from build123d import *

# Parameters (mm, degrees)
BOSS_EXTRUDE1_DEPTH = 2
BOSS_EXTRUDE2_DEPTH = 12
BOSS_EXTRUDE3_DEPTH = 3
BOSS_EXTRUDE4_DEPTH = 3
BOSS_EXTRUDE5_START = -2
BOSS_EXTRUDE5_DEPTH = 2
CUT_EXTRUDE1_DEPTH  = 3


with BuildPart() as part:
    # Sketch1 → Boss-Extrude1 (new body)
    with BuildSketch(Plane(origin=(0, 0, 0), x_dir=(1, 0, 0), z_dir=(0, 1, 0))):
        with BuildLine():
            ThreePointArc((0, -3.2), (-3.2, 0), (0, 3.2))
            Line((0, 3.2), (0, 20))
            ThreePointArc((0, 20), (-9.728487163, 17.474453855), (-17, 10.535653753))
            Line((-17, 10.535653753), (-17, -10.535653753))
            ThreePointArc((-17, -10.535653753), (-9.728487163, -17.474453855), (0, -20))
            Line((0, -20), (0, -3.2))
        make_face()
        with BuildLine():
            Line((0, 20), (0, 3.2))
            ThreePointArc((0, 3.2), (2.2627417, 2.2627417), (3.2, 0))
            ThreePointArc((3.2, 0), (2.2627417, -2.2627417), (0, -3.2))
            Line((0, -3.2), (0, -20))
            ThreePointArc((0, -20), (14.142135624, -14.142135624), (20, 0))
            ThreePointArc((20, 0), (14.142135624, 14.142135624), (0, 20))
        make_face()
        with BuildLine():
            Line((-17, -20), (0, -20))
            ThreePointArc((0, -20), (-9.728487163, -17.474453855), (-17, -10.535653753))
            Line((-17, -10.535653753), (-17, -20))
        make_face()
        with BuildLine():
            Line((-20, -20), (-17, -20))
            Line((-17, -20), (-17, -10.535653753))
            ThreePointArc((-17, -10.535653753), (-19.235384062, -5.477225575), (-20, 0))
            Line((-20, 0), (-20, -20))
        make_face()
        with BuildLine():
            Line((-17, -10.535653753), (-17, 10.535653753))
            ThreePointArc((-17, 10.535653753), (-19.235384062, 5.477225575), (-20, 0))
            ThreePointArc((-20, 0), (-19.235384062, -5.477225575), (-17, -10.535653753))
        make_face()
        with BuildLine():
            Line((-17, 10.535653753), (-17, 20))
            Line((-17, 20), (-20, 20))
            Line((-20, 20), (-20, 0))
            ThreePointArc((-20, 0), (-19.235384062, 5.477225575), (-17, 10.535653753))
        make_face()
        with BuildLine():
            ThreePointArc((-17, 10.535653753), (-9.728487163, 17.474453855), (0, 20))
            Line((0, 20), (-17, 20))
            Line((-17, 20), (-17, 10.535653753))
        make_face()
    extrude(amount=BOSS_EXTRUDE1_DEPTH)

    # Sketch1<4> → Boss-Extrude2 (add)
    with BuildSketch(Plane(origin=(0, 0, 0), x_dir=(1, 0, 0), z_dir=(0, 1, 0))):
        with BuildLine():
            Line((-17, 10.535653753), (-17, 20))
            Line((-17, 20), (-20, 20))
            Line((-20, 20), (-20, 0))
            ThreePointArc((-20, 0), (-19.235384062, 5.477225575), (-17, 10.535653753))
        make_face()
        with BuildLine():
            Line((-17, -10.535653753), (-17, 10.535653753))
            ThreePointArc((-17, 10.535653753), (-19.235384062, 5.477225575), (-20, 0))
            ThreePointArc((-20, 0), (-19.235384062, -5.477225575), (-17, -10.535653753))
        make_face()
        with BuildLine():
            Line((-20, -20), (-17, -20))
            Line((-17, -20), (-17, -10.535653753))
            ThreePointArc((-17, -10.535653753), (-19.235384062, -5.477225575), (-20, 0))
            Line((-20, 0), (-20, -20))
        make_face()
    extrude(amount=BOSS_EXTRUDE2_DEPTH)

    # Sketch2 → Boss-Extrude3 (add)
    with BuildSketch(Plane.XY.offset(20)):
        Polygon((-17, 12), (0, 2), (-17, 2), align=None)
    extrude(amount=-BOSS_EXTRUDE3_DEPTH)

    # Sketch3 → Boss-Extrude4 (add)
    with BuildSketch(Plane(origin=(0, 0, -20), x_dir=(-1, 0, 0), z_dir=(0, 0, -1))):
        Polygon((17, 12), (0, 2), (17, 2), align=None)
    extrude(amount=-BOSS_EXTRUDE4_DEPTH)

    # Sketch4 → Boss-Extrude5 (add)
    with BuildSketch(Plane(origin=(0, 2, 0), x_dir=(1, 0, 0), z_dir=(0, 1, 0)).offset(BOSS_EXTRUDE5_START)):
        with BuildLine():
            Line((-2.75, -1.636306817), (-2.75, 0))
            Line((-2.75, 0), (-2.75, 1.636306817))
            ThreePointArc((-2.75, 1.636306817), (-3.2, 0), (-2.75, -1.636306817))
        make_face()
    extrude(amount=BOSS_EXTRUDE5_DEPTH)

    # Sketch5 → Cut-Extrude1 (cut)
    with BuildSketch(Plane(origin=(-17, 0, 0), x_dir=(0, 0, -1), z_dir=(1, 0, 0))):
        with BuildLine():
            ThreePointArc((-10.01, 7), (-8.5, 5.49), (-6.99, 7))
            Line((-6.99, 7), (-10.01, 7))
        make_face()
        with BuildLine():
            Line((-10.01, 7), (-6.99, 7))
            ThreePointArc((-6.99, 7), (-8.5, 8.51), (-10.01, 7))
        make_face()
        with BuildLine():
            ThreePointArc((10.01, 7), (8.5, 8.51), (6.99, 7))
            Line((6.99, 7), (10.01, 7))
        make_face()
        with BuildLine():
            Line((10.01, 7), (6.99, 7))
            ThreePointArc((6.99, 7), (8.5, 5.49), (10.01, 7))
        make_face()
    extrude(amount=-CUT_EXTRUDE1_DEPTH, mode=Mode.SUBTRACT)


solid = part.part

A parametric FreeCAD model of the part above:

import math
import FreeCAD as App
import Part
import Sketcher
from FreeCAD import Vector
Q = App.Units.Quantity

doc = App.newDocument("Part")
body = doc.addObject("PartDesign::Body", "Body")

sketch1 = doc.addObject("Sketcher::SketchObject", "Sketch")
body.addObject(sketch1)
sketch1.AttachmentSupport = (doc.XZ_Plane, [""])
sketch1.MapMode = "FlatFace"
sketch1.addGeometry([
    Part.LineSegment(Vector(-20, -20, 0), Vector(-20, 20, 0)),
    Part.LineSegment(Vector(-20, 20, 0), Vector(0, 20, 0)),
    Part.ArcOfCircle(Part.Circle(Vector(0, 0, 0), Vector(0, 0, 1), 20), math.radians(0), math.radians(90)),
    Part.ArcOfCircle(Part.Circle(Vector(0, 0, 0), Vector(0, 0, 1), 20), math.radians(-90), math.radians(0)),
    Part.LineSegment(Vector(0, -20, 0), Vector(-20, -20, 0)),
    Part.ArcOfCircle(Part.Circle(Vector(0, 0, 0), Vector(0, 0, 1), 3.2), math.radians(90), math.radians(270)),
    Part.ArcOfCircle(Part.Circle(Vector(0, 0, 0), Vector(0, 0, 1), 3.2), math.radians(-90), math.radians(0)),
    Part.ArcOfCircle(Part.Circle(Vector(0, 0, 0), Vector(0, 0, 1), 3.2), math.radians(0), math.radians(90)),
], False)
sketch1.addConstraint([
    Sketcher.Constraint("Coincident", 0, 2, 1, 1),
    Sketcher.Constraint("Tangent", 1, 2, 2, 2),
    Sketcher.Constraint("Tangent", 2, 1, 3, 2),
    Sketcher.Constraint("Tangent", 3, 1, 4, 1),
    Sketcher.Constraint("Coincident", 4, 2, 0, 1),
    Sketcher.Constraint("Tangent", 5, 2, 6, 1),
    Sketcher.Constraint("Tangent", 6, 2, 7, 1),
    Sketcher.Constraint("Tangent", 7, 2, 5, 1),
    Sketcher.Constraint("Vertical", 0),
    Sketcher.Constraint("Horizontal", 1),
    Sketcher.Constraint("Horizontal", 4),
    Sketcher.Constraint("Coincident", 2, 3, -1, 1),
    Sketcher.Constraint("Coincident", 5, 3, -1, 1),
    Sketcher.Constraint("Equal", 2, 3),
    Sketcher.Constraint("PointOnObject", 2, 1, -1),
    Sketcher.Constraint("PointOnObject", 5, 2, -2),
    Sketcher.Constraint("PointOnObject", 6, 2, -1),
    Sketcher.Constraint("PointOnObject", 7, 2, -2),
    Sketcher.Constraint("Radius", 2, Q("20 mm")),
    Sketcher.Constraint("Radius", 5, Q("3.2 mm")),
    Sketcher.Constraint("DistanceX", 1, 1, 1, 2, Q("20 mm")),
])
pad1 = doc.addObject("PartDesign::Pad", "Pad")
body.addObject(pad1)
pad1.Profile = sketch1
pad1.Length = 2
pad1.Reversed = True

sketch2 = doc.addObject("Sketcher::SketchObject", "Sketch001")
body.addObject(sketch2)
sketch2.AttachmentSupport = (doc.XZ_Plane, [""])
sketch2.MapMode = "FlatFace"
sketch2.addGeometry([
    Part.LineSegment(Vector(-17, -20, 0), Vector(-20, -20, 0)),
    Part.LineSegment(Vector(-20, -20, 0), Vector(-20, 20, 0)),
    Part.LineSegment(Vector(-20, 20, 0), Vector(-17, 20, 0)),
    Part.LineSegment(Vector(-17, 20, 0), Vector(-17, -20, 0)),
], False)
sketch2.addConstraint([
    Sketcher.Constraint("Coincident", 0, 2, 1, 1),
    Sketcher.Constraint("Coincident", 1, 2, 2, 1),
    Sketcher.Constraint("Coincident", 2, 2, 3, 1),
    Sketcher.Constraint("Coincident", 3, 2, 0, 1),
    Sketcher.Constraint("Horizontal", 0),
    Sketcher.Constraint("Vertical", 1),
    Sketcher.Constraint("Horizontal", 2),
    Sketcher.Constraint("Vertical", 3),
    Sketcher.Constraint("DistanceX", 0, 2, 0, 1, Q("3 mm")),
    Sketcher.Constraint("DistanceY", 1, 1, 1, 2, Q("40 mm")),
    Sketcher.Constraint("DistanceX", 0, 2, -1, 1, Q("20 mm")),
    Sketcher.Constraint("DistanceY", 0, 2, -1, 1, Q("20 mm")),
])
pad2 = doc.addObject("PartDesign::Pad", "Pad001")
body.addObject(pad2)
pad2.Profile = sketch2
pad2.Length = 12
pad2.Reversed = True

sketch3 = doc.addObject("Sketcher::SketchObject", "Sketch002")
body.addObject(sketch3)
sketch3.AttachmentSupport = (doc.XY_Plane, [""])
sketch3.MapMode = "FlatFace"
sketch3.AttachmentOffset = App.Placement(Vector(0, 0, 20), App.Rotation())
sketch3.addGeometry([
    Part.LineSegment(Vector(0, 2, 0), Vector(-17, 12, 0)),
    Part.LineSegment(Vector(-17, 12, 0), Vector(-17, 2, 0)),
    Part.LineSegment(Vector(-17, 2, 0), Vector(0, 2, 0)),
], False)
sketch3.addConstraint([
    Sketcher.Constraint("Coincident", 0, 2, 1, 1),
    Sketcher.Constraint("Coincident", 1, 2, 2, 1),
    Sketcher.Constraint("Coincident", 2, 2, 0, 1),
    Sketcher.Constraint("Vertical", 1),
    Sketcher.Constraint("Horizontal", 2),
    Sketcher.Constraint("PointOnObject", 2, 2, -2),
    Sketcher.Constraint("DistanceX", 2, 1, 2, 2, Q("17 mm")),
    Sketcher.Constraint("DistanceY", 1, 2, 1, 1, Q("10 mm")),
    Sketcher.Constraint("DistanceY", -1, 1, 0, 2, Q("12 mm")),
])
pad3 = doc.addObject("PartDesign::Pad", "Pad002")
body.addObject(pad3)
pad3.Profile = sketch3
pad3.Length = 3
pad3.Reversed = True

sketch4 = doc.addObject("Sketcher::SketchObject", "Sketch003")
body.addObject(sketch4)
sketch4.AttachmentSupport = (doc.XY_Plane, [""])
sketch4.MapMode = "FlatFace"
sketch4.AttachmentOffset = App.Placement(Vector(0, 0, -20), App.Rotation())
sketch4.addGeometry([
    Part.LineSegment(Vector(-17, 12, 0), Vector(0, 2, 0)),
    Part.LineSegment(Vector(0, 2, 0), Vector(-17, 2, 0)),
    Part.LineSegment(Vector(-17, 2, 0), Vector(-17, 12, 0)),
], False)
sketch4.addConstraint([
    Sketcher.Constraint("Coincident", 0, 2, 1, 1),
    Sketcher.Constraint("Coincident", 1, 2, 2, 1),
    Sketcher.Constraint("Coincident", 2, 2, 0, 1),
    Sketcher.Constraint("Horizontal", 1),
    Sketcher.Constraint("Vertical", 2),
    Sketcher.Constraint("PointOnObject", 0, 2, -2),
    Sketcher.Constraint("DistanceX", 1, 2, 1, 1, Q("17 mm")),
    Sketcher.Constraint("DistanceY", 2, 1, 2, 2, Q("10 mm")),
    Sketcher.Constraint("DistanceY", -1, 1, 0, 2, Q("2 mm")),
])
pad4 = doc.addObject("PartDesign::Pad", "Pad003")
body.addObject(pad4)
pad4.Profile = sketch4
pad4.Length = 3

sketch5 = doc.addObject("Sketcher::SketchObject", "Sketch004")
body.addObject(sketch5)
sketch5.AttachmentSupport = (doc.XZ_Plane, [""])
sketch5.MapMode = "FlatFace"
sketch5.addGeometry([
    Part.LineSegment(Vector(-2.8, 1.6, 0), Vector(-2.8, -1.6, 0)),
    Part.ArcOfCircle(Part.Circle(Vector(0, 0, 0), Vector(0, 0, 1), 3.2), math.radians(149), math.radians(211)),
], False)
sketch5.addConstraint([
    Sketcher.Constraint("Coincident", 0, 1, 1, 1),
    Sketcher.Constraint("Coincident", 1, 2, 0, 2),
    Sketcher.Constraint("Vertical", 0),
    Sketcher.Constraint("Coincident", 1, 3, -1, 1),
    Sketcher.Constraint("Radius", 1, Q("3.2 mm")),
    Sketcher.Constraint("DistanceX", 0, 1, -1, 1, Q("2.75 mm")),
])
pad5 = doc.addObject("PartDesign::Pad", "Pad004")
body.addObject(pad5)
pad5.Profile = sketch5
pad5.Length = 2
pad5.Reversed = True

sketch6 = doc.addObject("Sketcher::SketchObject", "Sketch005")
body.addObject(sketch6)
sketch6.AttachmentSupport = (doc.YZ_Plane, [""])
sketch6.MapMode = "FlatFace"
sketch6.AttachmentOffset = App.Placement(Vector(0, 0, -17), App.Rotation())
sketch6.addGeometry([
    Part.Circle(Vector(7, 8.5, 0), Vector(0, 0, 1), 1.5),
    Part.Circle(Vector(7, -8.5, 0), Vector(0, 0, 1), 1.5),
], False)
sketch6.addConstraint([
    Sketcher.Constraint("Equal", 0, 1),
    Sketcher.Constraint("Symmetric", 0, 3, 1, 3, -1),
    Sketcher.Constraint("Diameter", 0, Q("3.02 mm")),
    Sketcher.Constraint("DistanceX", -1, 1, 0, 3, Q("7 mm")),
    Sketcher.Constraint("DistanceY", 1, 3, 0, 3, Q("17 mm")),
])
pocket1 = doc.addObject("PartDesign::Pocket", "Pocket")
body.addObject(pocket1)
pocket1.Profile = sketch6
pocket1.Length = 3

doc.recompute()
